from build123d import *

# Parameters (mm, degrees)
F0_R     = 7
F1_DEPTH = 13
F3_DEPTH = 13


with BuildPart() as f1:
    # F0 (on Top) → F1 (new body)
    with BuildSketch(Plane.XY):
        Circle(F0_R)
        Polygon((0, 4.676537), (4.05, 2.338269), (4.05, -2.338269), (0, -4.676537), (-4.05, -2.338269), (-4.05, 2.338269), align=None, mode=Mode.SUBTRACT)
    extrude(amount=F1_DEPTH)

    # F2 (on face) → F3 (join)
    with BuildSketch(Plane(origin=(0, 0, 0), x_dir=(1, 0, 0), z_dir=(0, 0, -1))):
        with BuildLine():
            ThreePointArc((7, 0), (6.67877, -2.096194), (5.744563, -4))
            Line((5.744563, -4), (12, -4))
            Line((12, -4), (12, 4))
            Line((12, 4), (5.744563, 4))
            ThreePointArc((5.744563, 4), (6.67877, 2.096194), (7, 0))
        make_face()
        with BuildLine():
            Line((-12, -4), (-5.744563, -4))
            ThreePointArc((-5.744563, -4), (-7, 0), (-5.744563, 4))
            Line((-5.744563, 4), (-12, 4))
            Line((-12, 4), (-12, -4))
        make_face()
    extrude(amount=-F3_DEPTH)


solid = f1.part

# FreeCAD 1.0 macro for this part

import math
import FreeCAD as App
import Part
import Sketcher
Q = App.Units.Quantity


def add_polygon(sketch, points):
    """Adds a closed chain of lines whose ends are joined by coincident constraints."""
    first, n = sketch.GeometryCount, len(points)
    for a, b in zip(points, points[1:] + points[:1]):
        sketch.addGeometry(Part.LineSegment(App.Vector(*a, 0), App.Vector(*b, 0)), False)
    for i in range(n):
        sketch.addConstraint(Sketcher.Constraint("Coincident", first + i, 2, first + (i + 1) % n, 1))

doc = App.newDocument("Part")
body = doc.addObject("PartDesign::Body", "Body")

sketch1 = body.newObject("Sketcher::SketchObject", "Sketch")
sketch1.AttachmentSupport = (doc.getObject("XY_Plane"), [""])
sketch1.MapMode = "FlatFace"
sketch1.addGeometry(Part.Circle(App.Vector(0, 0, 0), App.Vector(0, 0, 1), 7), False)
add_polygon(sketch1, [(-4, 2.3), (0, 4.7), (4, 2.3), (4, -2.3), (0, -4.7), (-4, -2.3)])
sketch1.addConstraint([
    Sketcher.Constraint("Vertical", 3),
    Sketcher.Constraint("Vertical", 6),
    Sketcher.Constraint("Coincident", 0, 3, -1, 1),
    Sketcher.Constraint("Symmetric", 1, 2, 4, 2, -1, 1),
    Sketcher.Constraint("Symmetric", 2, 2, 5, 2, -1, 1),
    Sketcher.Constraint("PointOnObject", 1, 2, -2),
    Sketcher.Constraint("Parallel", 1, 4),
    Sketcher.Constraint("Horizontal", 3, 2, 5, 2),
    Sketcher.Constraint("Diameter", 0, Q("14 mm")),
    Sketcher.Constraint("Angle", 1, Q("29.999994 deg")),
    Sketcher.Constraint("DistanceX", 5, 2, 3, 2, Q("8.1 mm")),
    Sketcher.Constraint("DistanceY", 3, 2, 3, 1, Q("4.676538 mm")),
])
pad1 = body.newObject("PartDesign::Pad", "Pad")
pad1.Profile = sketch1
pad1.Length = 13

sketch2 = body.newObject("Sketcher::SketchObject", "Sketch001")
sketch2.AttachmentSupport = (doc.getObject("XY_Plane"), [""])
sketch2.MapMode = "FlatFace"
sketch2.addGeometry([
    Part.ArcOfCircle(Part.Circle(App.Vector(0, 0, 0), App.Vector(0, 0, 1), 7), math.radians(0), math.radians(35)),
    Part.LineSegment(App.Vector(5.7, 4, 0), App.Vector(12, 4, 0)),
    Part.LineSegment(App.Vector(12, 4, 0), App.Vector(12, -4, 0)),
    Part.LineSegment(App.Vector(12, -4, 0), App.Vector(5.7, -4, 0)),
    Part.ArcOfCircle(Part.Circle(App.Vector(0, 0, 0), App.Vector(0, 0, 1), 7), math.radians(-35), math.radians(0)),
    Part.LineSegment(App.Vector(-12, 4, 0), App.Vector(-5.7, 4, 0)),
    Part.ArcOfCircle(Part.Circle(App.Vector(0, 0, 0), App.Vector(0, 0, 1), 7), math.radians(145), math.radians(215)),
    Part.LineSegment(App.Vector(-5.7, -4, 0), App.Vector(-12, -4, 0)),
    Part.LineSegment(App.Vector(-12, -4, 0), App.Vector(-12, 4, 0)),
], False)
sketch2.addConstraint([
    Sketcher.Constraint("Coincident", 0, 2, 1, 1),
    Sketcher.Constraint("Coincident", 1, 2, 2, 1),
    Sketcher.Constraint("Coincident", 2, 2, 3, 1),
    Sketcher.Constraint("Coincident", 3, 2, 4, 1),
    Sketcher.Constraint("Tangent", 4, 2, 0, 1),
    Sketcher.Constraint("Coincident", 5, 2, 6, 1),
    Sketcher.Constraint("Coincident", 6, 2, 7, 1),
    Sketcher.Constraint("Coincident", 7, 2, 8, 1),
    Sketcher.Constraint("Coincident", 8, 2, 5, 1),
    Sketcher.Constraint("Horizontal", 1),
    Sketcher.Constraint("Vertical", 2),
    Sketcher.Constraint("Horizontal", 3),
    Sketcher.Constraint("Horizontal", 5),
    Sketcher.Constraint("Horizontal", 7),
    Sketcher.Constraint("Vertical", 8),
    Sketcher.Constraint("Coincident", 0, 3, -1, 1),
    Sketcher.Constraint("Coincident", 6, 3, -1, 1),
    Sketcher.Constraint("Equal", 0, 4),
    Sketcher.Constraint("Symmetric", 3, 2, 5, 2, -1, 1),
    Sketcher.Constraint("Symmetric", 1, 2, 7, 2, -1, 1),
    Sketcher.Constraint("PointOnObject", 4, 2, -1),
    Sketcher.Constraint("Horizontal", 1, 2, 5, 2),
    Sketcher.Constraint("Radius", 6, Q("7.000002 mm")),
    Sketcher.Constraint("DistanceY", 2, 2, 2, 1, Q("8 mm")),
    Sketcher.Constraint("DistanceX", -1, 1, 1, 2, Q("12 mm")),
])
pad2 = body.newObject("PartDesign::Pad", "Pad001")
pad2.Profile = sketch2
pad2.Length = 13

doc.recompute()
